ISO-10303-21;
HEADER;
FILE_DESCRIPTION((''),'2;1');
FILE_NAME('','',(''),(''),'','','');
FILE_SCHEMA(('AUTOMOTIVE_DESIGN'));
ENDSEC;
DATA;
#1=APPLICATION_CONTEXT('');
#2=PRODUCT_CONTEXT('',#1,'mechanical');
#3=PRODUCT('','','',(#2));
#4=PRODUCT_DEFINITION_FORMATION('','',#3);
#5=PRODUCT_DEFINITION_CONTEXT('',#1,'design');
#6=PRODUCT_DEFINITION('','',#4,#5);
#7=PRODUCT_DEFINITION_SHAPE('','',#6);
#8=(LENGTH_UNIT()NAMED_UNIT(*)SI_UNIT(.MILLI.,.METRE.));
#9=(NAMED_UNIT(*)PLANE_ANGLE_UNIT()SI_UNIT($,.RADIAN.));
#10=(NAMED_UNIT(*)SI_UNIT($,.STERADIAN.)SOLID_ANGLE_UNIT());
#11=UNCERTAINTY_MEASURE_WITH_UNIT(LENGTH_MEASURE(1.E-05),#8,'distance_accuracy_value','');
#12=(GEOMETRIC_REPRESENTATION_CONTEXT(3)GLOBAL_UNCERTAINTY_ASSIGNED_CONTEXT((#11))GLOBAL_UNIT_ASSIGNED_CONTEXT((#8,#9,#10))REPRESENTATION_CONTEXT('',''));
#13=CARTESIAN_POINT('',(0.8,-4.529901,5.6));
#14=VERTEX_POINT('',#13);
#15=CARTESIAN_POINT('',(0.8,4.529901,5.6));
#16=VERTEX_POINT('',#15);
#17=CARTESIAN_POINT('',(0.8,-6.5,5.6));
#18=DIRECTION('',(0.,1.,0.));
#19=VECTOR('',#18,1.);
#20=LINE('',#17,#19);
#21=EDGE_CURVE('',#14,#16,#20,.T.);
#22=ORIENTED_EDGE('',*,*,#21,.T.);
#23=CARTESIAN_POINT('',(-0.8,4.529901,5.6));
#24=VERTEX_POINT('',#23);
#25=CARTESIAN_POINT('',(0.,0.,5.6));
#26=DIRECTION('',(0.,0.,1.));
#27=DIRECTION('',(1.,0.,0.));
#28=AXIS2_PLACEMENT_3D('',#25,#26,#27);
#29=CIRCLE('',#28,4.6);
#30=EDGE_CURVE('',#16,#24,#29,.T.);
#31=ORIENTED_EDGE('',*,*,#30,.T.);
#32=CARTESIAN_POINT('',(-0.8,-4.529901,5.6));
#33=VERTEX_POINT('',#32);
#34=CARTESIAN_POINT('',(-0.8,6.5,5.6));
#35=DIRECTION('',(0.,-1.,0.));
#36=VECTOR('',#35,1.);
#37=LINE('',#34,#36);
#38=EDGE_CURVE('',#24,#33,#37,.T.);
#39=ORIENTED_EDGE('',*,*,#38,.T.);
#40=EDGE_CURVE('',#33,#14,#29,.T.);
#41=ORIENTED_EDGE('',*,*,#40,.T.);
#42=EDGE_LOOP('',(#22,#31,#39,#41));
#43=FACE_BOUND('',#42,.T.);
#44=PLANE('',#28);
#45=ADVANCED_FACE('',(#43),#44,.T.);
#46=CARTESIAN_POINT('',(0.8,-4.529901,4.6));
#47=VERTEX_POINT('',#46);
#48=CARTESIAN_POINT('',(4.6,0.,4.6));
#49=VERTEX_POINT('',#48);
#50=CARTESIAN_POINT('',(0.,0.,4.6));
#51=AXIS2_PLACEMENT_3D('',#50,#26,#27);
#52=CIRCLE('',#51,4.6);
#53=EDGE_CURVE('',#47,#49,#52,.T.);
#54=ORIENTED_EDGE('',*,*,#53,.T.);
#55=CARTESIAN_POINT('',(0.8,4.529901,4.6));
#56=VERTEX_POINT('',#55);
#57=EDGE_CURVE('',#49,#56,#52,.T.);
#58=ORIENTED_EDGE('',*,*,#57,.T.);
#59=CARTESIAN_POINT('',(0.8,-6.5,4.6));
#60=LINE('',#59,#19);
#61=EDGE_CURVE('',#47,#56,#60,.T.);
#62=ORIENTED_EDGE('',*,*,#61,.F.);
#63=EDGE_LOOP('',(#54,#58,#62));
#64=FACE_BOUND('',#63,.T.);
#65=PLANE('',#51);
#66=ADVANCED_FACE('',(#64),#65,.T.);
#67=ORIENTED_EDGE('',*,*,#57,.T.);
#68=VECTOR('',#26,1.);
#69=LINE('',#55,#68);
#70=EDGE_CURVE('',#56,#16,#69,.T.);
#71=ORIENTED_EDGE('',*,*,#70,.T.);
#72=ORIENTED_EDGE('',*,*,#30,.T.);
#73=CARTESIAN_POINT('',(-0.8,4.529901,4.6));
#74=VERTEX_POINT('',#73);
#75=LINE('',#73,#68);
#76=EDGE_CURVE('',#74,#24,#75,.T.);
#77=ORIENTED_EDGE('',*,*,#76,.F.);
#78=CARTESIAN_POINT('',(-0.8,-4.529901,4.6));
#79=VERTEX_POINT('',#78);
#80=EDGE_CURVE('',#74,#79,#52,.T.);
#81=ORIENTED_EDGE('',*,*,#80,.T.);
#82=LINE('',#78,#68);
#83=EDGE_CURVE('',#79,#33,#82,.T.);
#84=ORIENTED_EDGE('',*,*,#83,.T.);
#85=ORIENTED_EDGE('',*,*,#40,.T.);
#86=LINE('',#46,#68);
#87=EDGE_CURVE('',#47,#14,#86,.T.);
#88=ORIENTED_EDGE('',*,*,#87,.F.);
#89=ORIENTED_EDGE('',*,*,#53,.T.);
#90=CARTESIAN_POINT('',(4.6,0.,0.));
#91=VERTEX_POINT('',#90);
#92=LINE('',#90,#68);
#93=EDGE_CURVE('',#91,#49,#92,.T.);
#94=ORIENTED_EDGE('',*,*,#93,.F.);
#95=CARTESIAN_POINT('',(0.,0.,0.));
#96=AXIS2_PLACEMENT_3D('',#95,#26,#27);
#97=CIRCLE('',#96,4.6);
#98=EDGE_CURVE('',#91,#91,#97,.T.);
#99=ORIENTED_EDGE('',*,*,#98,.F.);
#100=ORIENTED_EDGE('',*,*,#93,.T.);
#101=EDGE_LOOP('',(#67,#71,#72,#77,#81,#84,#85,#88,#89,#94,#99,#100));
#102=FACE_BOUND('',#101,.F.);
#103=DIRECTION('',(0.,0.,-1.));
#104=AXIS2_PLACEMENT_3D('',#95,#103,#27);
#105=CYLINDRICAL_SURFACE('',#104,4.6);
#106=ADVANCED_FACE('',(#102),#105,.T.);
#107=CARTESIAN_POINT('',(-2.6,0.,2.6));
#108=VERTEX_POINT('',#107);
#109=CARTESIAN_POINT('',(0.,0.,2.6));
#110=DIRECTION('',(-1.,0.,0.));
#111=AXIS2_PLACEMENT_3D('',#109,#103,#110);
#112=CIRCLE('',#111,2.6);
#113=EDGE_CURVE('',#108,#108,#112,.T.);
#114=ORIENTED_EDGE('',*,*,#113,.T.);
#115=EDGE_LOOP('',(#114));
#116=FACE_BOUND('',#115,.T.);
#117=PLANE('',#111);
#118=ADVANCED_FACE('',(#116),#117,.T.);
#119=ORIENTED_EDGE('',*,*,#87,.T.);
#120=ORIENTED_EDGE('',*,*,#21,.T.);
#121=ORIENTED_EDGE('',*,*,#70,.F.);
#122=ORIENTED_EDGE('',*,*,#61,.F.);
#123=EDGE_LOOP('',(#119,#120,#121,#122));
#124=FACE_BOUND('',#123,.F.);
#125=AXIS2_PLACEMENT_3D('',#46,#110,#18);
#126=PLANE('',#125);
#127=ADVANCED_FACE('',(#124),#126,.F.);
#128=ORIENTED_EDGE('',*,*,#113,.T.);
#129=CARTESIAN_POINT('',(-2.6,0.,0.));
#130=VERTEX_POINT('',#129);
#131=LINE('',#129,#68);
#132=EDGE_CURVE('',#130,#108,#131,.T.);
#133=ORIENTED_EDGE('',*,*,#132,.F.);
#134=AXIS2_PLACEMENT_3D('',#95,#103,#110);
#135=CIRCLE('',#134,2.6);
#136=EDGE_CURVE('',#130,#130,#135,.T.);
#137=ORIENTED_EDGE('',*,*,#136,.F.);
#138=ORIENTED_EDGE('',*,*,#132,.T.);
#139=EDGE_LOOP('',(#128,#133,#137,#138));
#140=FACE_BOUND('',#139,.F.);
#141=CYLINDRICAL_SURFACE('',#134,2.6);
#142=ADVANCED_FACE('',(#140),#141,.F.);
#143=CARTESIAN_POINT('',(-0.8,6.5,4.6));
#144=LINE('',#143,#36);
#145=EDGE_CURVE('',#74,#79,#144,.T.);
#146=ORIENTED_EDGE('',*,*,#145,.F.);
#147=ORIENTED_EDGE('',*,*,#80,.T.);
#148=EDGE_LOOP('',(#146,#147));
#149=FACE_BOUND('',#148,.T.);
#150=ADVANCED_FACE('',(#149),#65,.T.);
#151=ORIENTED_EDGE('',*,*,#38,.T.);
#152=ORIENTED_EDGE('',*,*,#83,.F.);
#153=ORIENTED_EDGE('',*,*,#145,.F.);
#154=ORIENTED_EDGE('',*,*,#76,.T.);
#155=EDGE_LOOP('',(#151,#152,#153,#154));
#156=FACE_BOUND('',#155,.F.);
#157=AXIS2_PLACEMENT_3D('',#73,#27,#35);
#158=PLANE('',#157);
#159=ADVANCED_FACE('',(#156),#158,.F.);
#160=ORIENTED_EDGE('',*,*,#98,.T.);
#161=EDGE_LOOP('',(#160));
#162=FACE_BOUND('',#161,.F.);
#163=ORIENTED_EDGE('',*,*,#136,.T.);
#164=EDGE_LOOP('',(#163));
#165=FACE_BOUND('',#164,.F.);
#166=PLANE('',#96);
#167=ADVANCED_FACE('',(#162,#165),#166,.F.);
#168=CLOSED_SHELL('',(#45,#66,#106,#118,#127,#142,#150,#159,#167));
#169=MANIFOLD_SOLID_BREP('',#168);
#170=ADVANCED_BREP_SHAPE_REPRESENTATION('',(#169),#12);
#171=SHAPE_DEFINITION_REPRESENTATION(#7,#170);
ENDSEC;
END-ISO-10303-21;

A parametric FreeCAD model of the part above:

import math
import FreeCAD as App
import Part
import Sketcher

doc = App.newDocument("Part")
body = doc.addObject("PartDesign::Body", "Body")

# Sketch on XY plane
sketch1 = body.newObject("Sketcher::SketchObject", "Sketch")
sketch1.AttachmentSupport = (doc.getObject("XY_Plane"), [""])
sketch1.MapMode = "FlatFace"
sketch1.addGeometry(Part.Circle(App.Vector(0, 0, 0), App.Vector(0, 0, 1), 4.6), False)
sketch1.addConstraint(Sketcher.Constraint("Coincident", 0, 3, -1, 1))
sketch1.addConstraint(Sketcher.Constraint("Diameter", 0, 9.2))
pad1 = body.newObject("PartDesign::Pad", "Pad")
pad1.Profile = sketch1
pad1.Length = 4.6

# Sketch on XY plane
sketch2 = body.newObject("Sketcher::SketchObject", "Sketch001")
sketch2.AttachmentSupport = (doc.getObject("XY_Plane"), [""])
sketch2.MapMode = "FlatFace"
sketch2.addGeometry(Part.Circle(App.Vector(0, 0, 0), App.Vector(0, 0, 1), 2.6), False)
sketch2.addConstraint(Sketcher.Constraint("Coincident", 0, 3, -1, 1))
sketch2.addConstraint(Sketcher.Constraint("Diameter", 0, 5.2))
pocket1 = body.newObject("PartDesign::Pocket", "Pocket")
pocket1.Profile = sketch2
pocket1.Length = 2.6
pocket1.Reversed = True

# Sketch on XY plane
sketch3 = body.newObject("Sketcher::SketchObject", "Sketch002")
sketch3.AttachmentSupport = (doc.getObject("XY_Plane"), [""])
sketch3.MapMode = "FlatFace"
sketch3.AttachmentOffset = App.Placement(App.Vector(0, 0, 4.6), App.Rotation())
sketch3.addGeometry(Part.LineSegment(App.Vector(0.8, -4.5, 0), App.Vector(0.8, 4.5, 0)), False)
sketch3.addGeometry(Part.ArcOfCircle(Part.Circle(App.Vector(0, 0, 0), App.Vector(0, 0, 1), 4.6), math.radians(80), math.radians(100)), False)
sketch3.addGeometry(Part.LineSegment(App.Vector(-0.8, 4.5, 0), App.Vector(-0.8, -4.5, 0)), False)
sketch3.addGeometry(Part.ArcOfCircle(Part.Circle(App.Vector(0, 0, 0), App.Vector(0, 0, 1), 4.6), math.radians(-100), math.radians(-80)), False)
sketch3.addConstraint(Sketcher.Constraint("Coincident", 0, 2, 1, 1))
sketch3.addConstraint(Sketcher.Constraint("Coincident", 1, 2, 2, 1))
sketch3.addConstraint(Sketcher.Constraint("Coincident", 2, 2, 3, 1))
sketch3.addConstraint(Sketcher.Constraint("Coincident", 3, 2, 0, 1))
sketch3.addConstraint(Sketcher.Constraint("Vertical", 0))
sketch3.addConstraint(Sketcher.Constraint("Vertical", 2))
sketch3.addConstraint(Sketcher.Constraint("Coincident", 1, 3, -1, 1))
sketch3.addConstraint(Sketcher.Constraint("Coincident", 3, 3, -1, 1))
sketch3.addConstraint(Sketcher.Constraint("Equal", 1, 3))
sketch3.addConstraint(Sketcher.Constraint("Horizontal", 0, 2, 1, 2))
sketch3.addConstraint(Sketcher.Constraint("Radius", 1, 4.6))
sketch3.addConstraint(Sketcher.Constraint("DistanceX", 1, 2, 0, 2, 1.6))
pad2 = body.newObject("PartDesign::Pad", "Pad001")
pad2.Profile = sketch3
pad2.Length = 1

doc.recompute()
